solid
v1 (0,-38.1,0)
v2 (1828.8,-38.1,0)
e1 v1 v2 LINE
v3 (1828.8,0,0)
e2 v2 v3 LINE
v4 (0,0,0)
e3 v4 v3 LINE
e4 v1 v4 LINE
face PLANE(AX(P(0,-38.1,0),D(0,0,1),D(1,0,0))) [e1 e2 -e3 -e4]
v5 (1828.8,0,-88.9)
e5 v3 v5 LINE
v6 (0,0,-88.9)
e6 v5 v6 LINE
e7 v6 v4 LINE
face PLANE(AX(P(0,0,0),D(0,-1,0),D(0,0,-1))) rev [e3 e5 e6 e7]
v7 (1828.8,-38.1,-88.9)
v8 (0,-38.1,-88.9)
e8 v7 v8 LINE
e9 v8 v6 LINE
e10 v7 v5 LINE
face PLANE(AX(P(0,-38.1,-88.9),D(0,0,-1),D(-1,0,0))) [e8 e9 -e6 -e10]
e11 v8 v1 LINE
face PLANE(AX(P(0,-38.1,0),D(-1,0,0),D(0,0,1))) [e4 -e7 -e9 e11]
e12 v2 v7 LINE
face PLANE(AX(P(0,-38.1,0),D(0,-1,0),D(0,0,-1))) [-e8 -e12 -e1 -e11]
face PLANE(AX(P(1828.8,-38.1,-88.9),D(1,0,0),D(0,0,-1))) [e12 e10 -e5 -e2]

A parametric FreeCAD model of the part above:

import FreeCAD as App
import Part
import Sketcher

V = App.Vector
Q = App.Units.Quantity

doc = App.newDocument("Part")
body = doc.addObject("PartDesign::Body", "Body")

# Sketch on XZ plane
sketch1 = body.newObject("Sketcher::SketchObject", "Sketch")
sketch1.AttachmentSupport = (doc.getObject("XZ_Plane"), [""])
sketch1.MapMode = "FlatFace"
sketch1.addGeometry([
    Part.LineSegment(V(0, -89, 0), V(0, 0, 0)),
    Part.LineSegment(V(0, 0, 0), V(1829, 0, 0)),
    Part.LineSegment(V(1829, 0, 0), V(1829, -89, 0)),
    Part.LineSegment(V(1829, -89, 0), V(0, -89, 0)),
], False)
sketch1.addConstraint([
    Sketcher.Constraint("Coincident", 0, 2, 1, 1),
    Sketcher.Constraint("Coincident", 1, 2, 2, 1),
    Sketcher.Constraint("Coincident", 2, 2, 3, 1),
    Sketcher.Constraint("Coincident", 3, 2, 0, 1),
    Sketcher.Constraint("Vertical", 0),
    Sketcher.Constraint("Horizontal", 1),
    Sketcher.Constraint("Vertical", 2),
    Sketcher.Constraint("Horizontal", 3),
    Sketcher.Constraint("Coincident", 0, 2, -1, 1),
    Sketcher.Constraint("DistanceX", 1, 1, 1, 2, Q("72 in")),
    Sketcher.Constraint("DistanceY", 0, 1, 0, 2, Q("3.5 in")),
])
pad1 = body.newObject("PartDesign::Pad", "Pad")
pad1.Profile = sketch1
pad1.Length = Q("1.5 in")

doc.recompute()
